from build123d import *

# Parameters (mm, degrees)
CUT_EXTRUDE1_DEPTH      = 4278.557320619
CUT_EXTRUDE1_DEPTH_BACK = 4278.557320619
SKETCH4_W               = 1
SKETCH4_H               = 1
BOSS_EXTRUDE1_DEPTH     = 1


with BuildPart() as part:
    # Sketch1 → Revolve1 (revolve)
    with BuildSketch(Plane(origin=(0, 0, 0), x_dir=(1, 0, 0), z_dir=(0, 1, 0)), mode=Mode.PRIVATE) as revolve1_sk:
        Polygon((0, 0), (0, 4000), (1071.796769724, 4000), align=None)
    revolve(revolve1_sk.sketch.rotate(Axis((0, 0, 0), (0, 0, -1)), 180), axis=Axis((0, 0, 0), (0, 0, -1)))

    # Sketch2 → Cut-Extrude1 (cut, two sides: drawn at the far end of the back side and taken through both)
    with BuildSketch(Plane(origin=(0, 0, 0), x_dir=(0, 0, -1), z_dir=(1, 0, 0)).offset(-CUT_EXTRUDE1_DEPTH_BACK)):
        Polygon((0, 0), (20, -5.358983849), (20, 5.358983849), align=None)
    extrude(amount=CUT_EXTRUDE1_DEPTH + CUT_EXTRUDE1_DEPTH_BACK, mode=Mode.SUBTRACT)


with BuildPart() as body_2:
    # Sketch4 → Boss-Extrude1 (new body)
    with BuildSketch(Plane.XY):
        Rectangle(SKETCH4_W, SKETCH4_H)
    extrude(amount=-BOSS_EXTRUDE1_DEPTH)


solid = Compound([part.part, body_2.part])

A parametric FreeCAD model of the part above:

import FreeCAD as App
import Part
import Sketcher

V = App.Vector
Q = App.Units.Quantity

doc = App.newDocument("Part")
body = doc.addObject("PartDesign::Body", "Body")

# Sketch on XZ plane
sketch1 = body.newObject("Sketcher::SketchObject", "Sketch")
sketch1.AttachmentSupport = (doc.getObject("XZ_Plane"), [""])
sketch1.MapMode = "FlatFace"
sketch1.addGeometry(Part.LineSegment(V(0, -4000, 0), V(0, 0, 0)), False)
sketch1.addGeometry(Part.LineSegment(V(0, 0, 0), V(1071.79677, -4000, 0)), False)
sketch1.addGeometry(Part.LineSegment(V(1071.79677, -4000, 0), V(0, -4000, 0)), False)
sketch1.addConstraint(Sketcher.Constraint("Coincident", 0, 2, 1, 1))
sketch1.addConstraint(Sketcher.Constraint("Coincident", 1, 2, 2, 1))
sketch1.addConstraint(Sketcher.Constraint("Coincident", 2, 2, 0, 1))
sketch1.addConstraint(Sketcher.Constraint("Vertical", 0))
sketch1.addConstraint(Sketcher.Constraint("Horizontal", 2))
sketch1.addConstraint(Sketcher.Constraint("Coincident", 0, 2, -1, 1))
sketch1.addConstraint(Sketcher.Constraint("DistanceY", 0, 1, 0, 2, 4000.0))
sketch1.addConstraint(Sketcher.Constraint("Angle", 1, Q("-75 deg")))
revolution = body.newObject("PartDesign::Revolution", "Revolution")
revolution.Profile = sketch1
revolution.ReferenceAxis = (sketch1, ["V_Axis"])
revolution.Angle = 360

# Sketch on YZ plane
sketch2 = body.newObject("Sketcher::SketchObject", "Sketch001")
sketch2.AttachmentSupport = (doc.getObject("YZ_Plane"), [""])
sketch2.MapMode = "FlatFace"
sketch2.addGeometry(Part.LineSegment(V(0, 0, 0), V(-5.358984, -20, 0)), False)
sketch2.addGeometry(Part.LineSegment(V(-5.358984, -20, 0), V(5.358984, -20, 0)), False)
sketch2.addGeometry(Part.LineSegment(V(5.358984, -20, 0), V(0, 0, 0)), False)
sketch2.addConstraint(Sketcher.Constraint("Coincident", 0, 2, 1, 1))
sketch2.addConstraint(Sketcher.Constraint("Coincident", 1, 2, 2, 1))
sketch2.addConstraint(Sketcher.Constraint("Coincident", 2, 2, 0, 1))
sketch2.addConstraint(Sketcher.Constraint("Horizontal", 1))
sketch2.addConstraint(Sketcher.Constraint("Coincident", 2, 2, -1, 1))
sketch2.addConstraint(Sketcher.Constraint("Equal", 0, 2))
sketch2.addConstraint(Sketcher.Constraint("Angle", 0, Q("-105 deg")))
sketch2.addConstraint(Sketcher.Constraint("DistanceY", 0, 2, -1, 1, 20.0))
pocket1 = body.newObject("PartDesign::Pocket", "Pocket")
pocket1.Profile = sketch2
pocket1.Type = "ThroughAll"
pocket1.Midplane = True
body2 = doc.addObject("PartDesign::Body", "Body001")

# Sketch on XY plane
sketch3 = body2.newObject("Sketcher::SketchObject", "Sketch002")
sketch3.AttachmentSupport = (doc.getObject("XY_Plane001"), [""])
sketch3.MapMode = "FlatFace"
sketch3.addGeometry(Part.LineSegment(V(-0.5, 0.5, 0), V(-0.5, -0.5, 0)), False)
sketch3.addGeometry(Part.LineSegment(V(-0.5, -0.5, 0), V(0.5, -0.5, 0)), False)
sketch3.addGeometry(Part.LineSegment(V(0.5, -0.5, 0), V(0.5, 0.5, 0)), False)
sketch3.addGeometry(Part.LineSegment(V(0.5, 0.5, 0), V(-0.5, 0.5, 0)), False)
sketch3.addConstraint(Sketcher.Constraint("Coincident", 0, 2, 1, 1))
sketch3.addConstraint(Sketcher.Constraint("Coincident", 1, 2, 2, 1))
sketch3.addConstraint(Sketcher.Constraint("Coincident", 2, 2, 3, 1))
sketch3.addConstraint(Sketcher.Constraint("Coincident", 3, 2, 0, 1))
sketch3.addConstraint(Sketcher.Constraint("Vertical", 0))
sketch3.addConstraint(Sketcher.Constraint("Horizontal", 1))
sketch3.addConstraint(Sketcher.Constraint("Vertical", 2))
sketch3.addConstraint(Sketcher.Constraint("Horizontal", 3))
sketch3.addConstraint(Sketcher.Constraint("Symmetric", 0, 2, 2, 2, -1, 1))
sketch3.addConstraint(Sketcher.Constraint("Equal", 3, 0))
sketch3.addConstraint(Sketcher.Constraint("DistanceX", 1, 1, 1, 2, 1.0))
pad1 = body2.newObject("PartDesign::Pad", "Pad")
pad1.Profile = sketch3
pad1.Length = 1
pad1.Reversed = True

doc.recompute()
